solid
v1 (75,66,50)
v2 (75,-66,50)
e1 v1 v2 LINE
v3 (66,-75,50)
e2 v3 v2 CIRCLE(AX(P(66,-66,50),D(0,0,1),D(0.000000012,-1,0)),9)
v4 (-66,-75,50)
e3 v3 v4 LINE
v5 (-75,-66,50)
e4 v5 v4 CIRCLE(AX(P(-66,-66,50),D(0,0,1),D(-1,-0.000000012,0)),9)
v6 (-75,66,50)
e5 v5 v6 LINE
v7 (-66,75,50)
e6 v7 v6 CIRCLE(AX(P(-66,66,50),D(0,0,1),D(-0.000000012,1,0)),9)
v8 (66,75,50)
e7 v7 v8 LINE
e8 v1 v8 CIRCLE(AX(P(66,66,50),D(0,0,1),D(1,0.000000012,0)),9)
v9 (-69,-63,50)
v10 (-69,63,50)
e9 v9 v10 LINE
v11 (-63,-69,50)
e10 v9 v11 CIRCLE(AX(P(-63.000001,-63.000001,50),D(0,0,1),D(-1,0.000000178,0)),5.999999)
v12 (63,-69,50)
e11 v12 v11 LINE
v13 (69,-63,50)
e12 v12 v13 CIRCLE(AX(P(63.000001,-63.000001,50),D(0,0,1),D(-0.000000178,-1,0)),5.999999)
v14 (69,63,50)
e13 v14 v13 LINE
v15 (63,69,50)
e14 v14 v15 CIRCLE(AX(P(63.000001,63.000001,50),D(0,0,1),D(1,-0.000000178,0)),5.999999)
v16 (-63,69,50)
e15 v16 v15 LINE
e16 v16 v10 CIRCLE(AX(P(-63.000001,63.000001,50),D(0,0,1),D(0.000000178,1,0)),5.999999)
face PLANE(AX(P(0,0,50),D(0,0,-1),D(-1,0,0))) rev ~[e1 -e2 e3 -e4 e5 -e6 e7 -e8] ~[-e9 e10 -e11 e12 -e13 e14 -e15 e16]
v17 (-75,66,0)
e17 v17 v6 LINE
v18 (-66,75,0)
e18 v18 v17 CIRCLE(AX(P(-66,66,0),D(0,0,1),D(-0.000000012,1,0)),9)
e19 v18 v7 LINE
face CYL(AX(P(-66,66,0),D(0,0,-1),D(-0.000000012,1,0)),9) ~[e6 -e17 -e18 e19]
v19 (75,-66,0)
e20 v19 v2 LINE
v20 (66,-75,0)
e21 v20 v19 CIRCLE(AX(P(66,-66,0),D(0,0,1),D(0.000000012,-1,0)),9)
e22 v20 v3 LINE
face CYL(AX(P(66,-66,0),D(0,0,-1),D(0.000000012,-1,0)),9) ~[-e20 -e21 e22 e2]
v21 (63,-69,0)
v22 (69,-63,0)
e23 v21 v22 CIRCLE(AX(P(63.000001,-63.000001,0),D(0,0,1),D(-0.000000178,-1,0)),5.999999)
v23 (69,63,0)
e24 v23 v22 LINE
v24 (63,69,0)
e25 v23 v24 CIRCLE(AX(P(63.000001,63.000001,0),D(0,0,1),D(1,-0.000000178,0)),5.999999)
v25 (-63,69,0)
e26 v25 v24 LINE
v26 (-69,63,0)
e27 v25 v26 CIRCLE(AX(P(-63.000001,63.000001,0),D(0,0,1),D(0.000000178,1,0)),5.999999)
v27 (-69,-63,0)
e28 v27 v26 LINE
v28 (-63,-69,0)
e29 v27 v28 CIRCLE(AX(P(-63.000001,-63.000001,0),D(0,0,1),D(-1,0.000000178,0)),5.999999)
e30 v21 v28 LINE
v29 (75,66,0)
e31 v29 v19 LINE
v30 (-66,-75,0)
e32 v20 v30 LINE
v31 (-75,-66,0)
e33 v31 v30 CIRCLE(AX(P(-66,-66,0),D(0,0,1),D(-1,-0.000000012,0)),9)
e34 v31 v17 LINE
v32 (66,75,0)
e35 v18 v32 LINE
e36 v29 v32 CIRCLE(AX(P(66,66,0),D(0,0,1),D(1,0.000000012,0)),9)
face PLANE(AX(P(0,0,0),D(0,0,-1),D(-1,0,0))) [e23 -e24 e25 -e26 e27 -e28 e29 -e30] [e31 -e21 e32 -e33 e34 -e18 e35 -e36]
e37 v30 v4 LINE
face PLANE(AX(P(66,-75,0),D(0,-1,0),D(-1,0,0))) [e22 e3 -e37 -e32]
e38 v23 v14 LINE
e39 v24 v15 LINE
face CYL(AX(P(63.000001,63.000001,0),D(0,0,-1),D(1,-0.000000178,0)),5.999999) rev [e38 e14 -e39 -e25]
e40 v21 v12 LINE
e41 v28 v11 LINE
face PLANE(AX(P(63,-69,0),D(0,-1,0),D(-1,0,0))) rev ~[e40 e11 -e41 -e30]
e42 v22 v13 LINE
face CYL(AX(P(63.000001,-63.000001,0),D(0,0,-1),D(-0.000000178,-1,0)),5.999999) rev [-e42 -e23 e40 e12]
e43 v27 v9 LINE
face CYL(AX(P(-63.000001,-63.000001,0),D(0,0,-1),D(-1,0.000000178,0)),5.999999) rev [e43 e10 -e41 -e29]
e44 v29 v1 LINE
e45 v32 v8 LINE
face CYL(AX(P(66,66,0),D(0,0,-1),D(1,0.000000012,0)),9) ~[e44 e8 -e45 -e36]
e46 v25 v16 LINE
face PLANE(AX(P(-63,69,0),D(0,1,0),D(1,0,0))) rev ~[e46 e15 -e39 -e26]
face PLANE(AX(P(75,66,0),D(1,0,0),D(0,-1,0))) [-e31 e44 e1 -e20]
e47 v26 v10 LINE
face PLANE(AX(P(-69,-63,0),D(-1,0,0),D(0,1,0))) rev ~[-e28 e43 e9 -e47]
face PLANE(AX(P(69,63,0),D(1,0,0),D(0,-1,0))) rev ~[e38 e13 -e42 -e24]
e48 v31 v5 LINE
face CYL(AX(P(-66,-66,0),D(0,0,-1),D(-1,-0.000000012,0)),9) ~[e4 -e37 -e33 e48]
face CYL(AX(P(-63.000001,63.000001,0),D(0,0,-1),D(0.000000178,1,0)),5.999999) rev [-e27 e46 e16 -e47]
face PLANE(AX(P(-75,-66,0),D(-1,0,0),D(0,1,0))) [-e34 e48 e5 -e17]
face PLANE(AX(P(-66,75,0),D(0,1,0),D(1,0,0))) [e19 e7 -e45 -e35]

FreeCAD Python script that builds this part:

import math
import FreeCAD as App
import Part
import Sketcher

V = App.Vector
Q = App.Units.Quantity

doc = App.newDocument("Part")
body = doc.addObject("PartDesign::Body", "Body")

sketch1 = body.newObject("Sketcher::SketchObject", "Sketch")
sketch1.AttachmentSupport = (doc.getObject("XY_Plane"), [""])
sketch1.MapMode = "FlatFace"
sketch1.addGeometry(Part.LineSegment(V(66, 75, 0), V(-66, 75, 0)), False)
sketch1.addGeometry(Part.ArcOfCircle(Part.Circle(V(-66, 66, 0), V(0, 0, 1), 9), math.radians(90), math.radians(180)), False)
sketch1.addGeometry(Part.LineSegment(V(-75, 66, 0), V(-75, -66, 0)), False)
sketch1.addGeometry(Part.ArcOfCircle(Part.Circle(V(-66, -66, 0), V(0, 0, 1), 9), math.radians(-180), math.radians(-90)), False)
sketch1.addGeometry(Part.LineSegment(V(-66, -75, 0), V(66, -75, 0)), False)
sketch1.addGeometry(Part.ArcOfCircle(Part.Circle(V(66, -66, 0), V(0, 0, 1), 9), math.radians(-90), math.radians(0)), False)
sketch1.addGeometry(Part.LineSegment(V(75, -66, 0), V(75, 66, 0)), False)
sketch1.addGeometry(Part.ArcOfCircle(Part.Circle(V(66, 66, 0), V(0, 0, 1), 9), math.radians(0), math.radians(90)), False)
sketch1.addGeometry(Part.LineSegment(V(-63, 69, 0), V(63, 69, 0)), False)
sketch1.addGeometry(Part.ArcOfCircle(Part.Circle(V(63, 63, 0), V(0, 0, 1), 6), math.radians(0), math.radians(90)), False)
sketch1.addGeometry(Part.LineSegment(V(69, 63, 0), V(69, -63, 0)), False)
sketch1.addGeometry(Part.ArcOfCircle(Part.Circle(V(63, -63, 0), V(0, 0, 1), 6), math.radians(-90), math.radians(0)), False)
sketch1.addGeometry(Part.LineSegment(V(63, -69, 0), V(-63, -69, 0)), False)
sketch1.addGeometry(Part.ArcOfCircle(Part.Circle(V(-63, -63, 0), V(0, 0, 1), 6), math.radians(180), math.radians(270)), False)
sketch1.addGeometry(Part.LineSegment(V(-69, -63, 0), V(-69, 63, 0)), False)
sketch1.addGeometry(Part.ArcOfCircle(Part.Circle(V(-63, 63, 0), V(0, 0, 1), 6), math.radians(90), math.radians(180)), False)
sketch1.addConstraint(Sketcher.Constraint("Tangent", 0, 2, 1, 1))
sketch1.addConstraint(Sketcher.Constraint("Tangent", 1, 2, 2, 1))
sketch1.addConstraint(Sketcher.Constraint("Tangent", 2, 2, 3, 1))
sketch1.addConstraint(Sketcher.Constraint("Tangent", 3, 2, 4, 1))
sketch1.addConstraint(Sketcher.Constraint("Tangent", 4, 2, 5, 1))
sketch1.addConstraint(Sketcher.Constraint("Tangent", 5, 2, 6, 1))
sketch1.addConstraint(Sketcher.Constraint("Tangent", 6, 2, 7, 1))
sketch1.addConstraint(Sketcher.Constraint("Tangent", 7, 2, 0, 1))
sketch1.addConstraint(Sketcher.Constraint("Tangent", 8, 2, 9, 2))
sketch1.addConstraint(Sketcher.Constraint("Tangent", 9, 1, 10, 1))
sketch1.addConstraint(Sketcher.Constraint("Tangent", 10, 2, 11, 2))
sketch1.addConstraint(Sketcher.Constraint("Tangent", 11, 1, 12, 1))
sketch1.addConstraint(Sketcher.Constraint("Tangent", 12, 2, 13, 2))
sketch1.addConstraint(Sketcher.Constraint("Tangent", 13, 1, 14, 1))
sketch1.addConstraint(Sketcher.Constraint("Tangent", 14, 2, 15, 2))
sketch1.addConstraint(Sketcher.Constraint("Tangent", 15, 1, 8, 1))
sketch1.addConstraint(Sketcher.Constraint("Horizontal", 0))
sketch1.addConstraint(Sketcher.Constraint("Vertical", 2))
sketch1.addConstraint(Sketcher.Constraint("Horizontal", 4))
sketch1.addConstraint(Sketcher.Constraint("Vertical", 6))
sketch1.addConstraint(Sketcher.Constraint("Horizontal", 8))
sketch1.addConstraint(Sketcher.Constraint("Vertical", 10))
sketch1.addConstraint(Sketcher.Constraint("Horizontal", 12))
sketch1.addConstraint(Sketcher.Constraint("Vertical", 14))
sketch1.addConstraint(Sketcher.Constraint("Equal", 1, 3))
sketch1.addConstraint(Sketcher.Constraint("Equal", 3, 5))
sketch1.addConstraint(Sketcher.Constraint("Equal", 5, 7))
sketch1.addConstraint(Sketcher.Constraint("Equal", 9, 11))
sketch1.addConstraint(Sketcher.Constraint("Equal", 11, 13))
sketch1.addConstraint(Sketcher.Constraint("Equal", 13, 15))
sketch1.addConstraint(Sketcher.Constraint("Symmetric", 1, 3, 5, 3, -1, 1))
sketch1.addConstraint(Sketcher.Constraint("Symmetric", 9, 3, 13, 3, -1, 1))
sketch1.addConstraint(Sketcher.Constraint("Equal", 4, 2))
sketch1.addConstraint(Sketcher.Constraint("Equal", 12, 10))
sketch1.addConstraint(Sketcher.Constraint("Radius", 1, Q("9 mm")))
sketch1.addConstraint(Sketcher.Constraint("Radius", 9, Q("5.999999 mm")))
sketch1.addConstraint(Sketcher.Constraint("DistanceX", 0, 2, 0, 1, Q("132 mm")))
sketch1.addConstraint(Sketcher.Constraint("DistanceX", 8, 1, 8, 2, Q("126 mm")))
pad1 = body.newObject("PartDesign::Pad", "Pad")
pad1.Profile = sketch1
pad1.Length = 50

doc.recompute()
